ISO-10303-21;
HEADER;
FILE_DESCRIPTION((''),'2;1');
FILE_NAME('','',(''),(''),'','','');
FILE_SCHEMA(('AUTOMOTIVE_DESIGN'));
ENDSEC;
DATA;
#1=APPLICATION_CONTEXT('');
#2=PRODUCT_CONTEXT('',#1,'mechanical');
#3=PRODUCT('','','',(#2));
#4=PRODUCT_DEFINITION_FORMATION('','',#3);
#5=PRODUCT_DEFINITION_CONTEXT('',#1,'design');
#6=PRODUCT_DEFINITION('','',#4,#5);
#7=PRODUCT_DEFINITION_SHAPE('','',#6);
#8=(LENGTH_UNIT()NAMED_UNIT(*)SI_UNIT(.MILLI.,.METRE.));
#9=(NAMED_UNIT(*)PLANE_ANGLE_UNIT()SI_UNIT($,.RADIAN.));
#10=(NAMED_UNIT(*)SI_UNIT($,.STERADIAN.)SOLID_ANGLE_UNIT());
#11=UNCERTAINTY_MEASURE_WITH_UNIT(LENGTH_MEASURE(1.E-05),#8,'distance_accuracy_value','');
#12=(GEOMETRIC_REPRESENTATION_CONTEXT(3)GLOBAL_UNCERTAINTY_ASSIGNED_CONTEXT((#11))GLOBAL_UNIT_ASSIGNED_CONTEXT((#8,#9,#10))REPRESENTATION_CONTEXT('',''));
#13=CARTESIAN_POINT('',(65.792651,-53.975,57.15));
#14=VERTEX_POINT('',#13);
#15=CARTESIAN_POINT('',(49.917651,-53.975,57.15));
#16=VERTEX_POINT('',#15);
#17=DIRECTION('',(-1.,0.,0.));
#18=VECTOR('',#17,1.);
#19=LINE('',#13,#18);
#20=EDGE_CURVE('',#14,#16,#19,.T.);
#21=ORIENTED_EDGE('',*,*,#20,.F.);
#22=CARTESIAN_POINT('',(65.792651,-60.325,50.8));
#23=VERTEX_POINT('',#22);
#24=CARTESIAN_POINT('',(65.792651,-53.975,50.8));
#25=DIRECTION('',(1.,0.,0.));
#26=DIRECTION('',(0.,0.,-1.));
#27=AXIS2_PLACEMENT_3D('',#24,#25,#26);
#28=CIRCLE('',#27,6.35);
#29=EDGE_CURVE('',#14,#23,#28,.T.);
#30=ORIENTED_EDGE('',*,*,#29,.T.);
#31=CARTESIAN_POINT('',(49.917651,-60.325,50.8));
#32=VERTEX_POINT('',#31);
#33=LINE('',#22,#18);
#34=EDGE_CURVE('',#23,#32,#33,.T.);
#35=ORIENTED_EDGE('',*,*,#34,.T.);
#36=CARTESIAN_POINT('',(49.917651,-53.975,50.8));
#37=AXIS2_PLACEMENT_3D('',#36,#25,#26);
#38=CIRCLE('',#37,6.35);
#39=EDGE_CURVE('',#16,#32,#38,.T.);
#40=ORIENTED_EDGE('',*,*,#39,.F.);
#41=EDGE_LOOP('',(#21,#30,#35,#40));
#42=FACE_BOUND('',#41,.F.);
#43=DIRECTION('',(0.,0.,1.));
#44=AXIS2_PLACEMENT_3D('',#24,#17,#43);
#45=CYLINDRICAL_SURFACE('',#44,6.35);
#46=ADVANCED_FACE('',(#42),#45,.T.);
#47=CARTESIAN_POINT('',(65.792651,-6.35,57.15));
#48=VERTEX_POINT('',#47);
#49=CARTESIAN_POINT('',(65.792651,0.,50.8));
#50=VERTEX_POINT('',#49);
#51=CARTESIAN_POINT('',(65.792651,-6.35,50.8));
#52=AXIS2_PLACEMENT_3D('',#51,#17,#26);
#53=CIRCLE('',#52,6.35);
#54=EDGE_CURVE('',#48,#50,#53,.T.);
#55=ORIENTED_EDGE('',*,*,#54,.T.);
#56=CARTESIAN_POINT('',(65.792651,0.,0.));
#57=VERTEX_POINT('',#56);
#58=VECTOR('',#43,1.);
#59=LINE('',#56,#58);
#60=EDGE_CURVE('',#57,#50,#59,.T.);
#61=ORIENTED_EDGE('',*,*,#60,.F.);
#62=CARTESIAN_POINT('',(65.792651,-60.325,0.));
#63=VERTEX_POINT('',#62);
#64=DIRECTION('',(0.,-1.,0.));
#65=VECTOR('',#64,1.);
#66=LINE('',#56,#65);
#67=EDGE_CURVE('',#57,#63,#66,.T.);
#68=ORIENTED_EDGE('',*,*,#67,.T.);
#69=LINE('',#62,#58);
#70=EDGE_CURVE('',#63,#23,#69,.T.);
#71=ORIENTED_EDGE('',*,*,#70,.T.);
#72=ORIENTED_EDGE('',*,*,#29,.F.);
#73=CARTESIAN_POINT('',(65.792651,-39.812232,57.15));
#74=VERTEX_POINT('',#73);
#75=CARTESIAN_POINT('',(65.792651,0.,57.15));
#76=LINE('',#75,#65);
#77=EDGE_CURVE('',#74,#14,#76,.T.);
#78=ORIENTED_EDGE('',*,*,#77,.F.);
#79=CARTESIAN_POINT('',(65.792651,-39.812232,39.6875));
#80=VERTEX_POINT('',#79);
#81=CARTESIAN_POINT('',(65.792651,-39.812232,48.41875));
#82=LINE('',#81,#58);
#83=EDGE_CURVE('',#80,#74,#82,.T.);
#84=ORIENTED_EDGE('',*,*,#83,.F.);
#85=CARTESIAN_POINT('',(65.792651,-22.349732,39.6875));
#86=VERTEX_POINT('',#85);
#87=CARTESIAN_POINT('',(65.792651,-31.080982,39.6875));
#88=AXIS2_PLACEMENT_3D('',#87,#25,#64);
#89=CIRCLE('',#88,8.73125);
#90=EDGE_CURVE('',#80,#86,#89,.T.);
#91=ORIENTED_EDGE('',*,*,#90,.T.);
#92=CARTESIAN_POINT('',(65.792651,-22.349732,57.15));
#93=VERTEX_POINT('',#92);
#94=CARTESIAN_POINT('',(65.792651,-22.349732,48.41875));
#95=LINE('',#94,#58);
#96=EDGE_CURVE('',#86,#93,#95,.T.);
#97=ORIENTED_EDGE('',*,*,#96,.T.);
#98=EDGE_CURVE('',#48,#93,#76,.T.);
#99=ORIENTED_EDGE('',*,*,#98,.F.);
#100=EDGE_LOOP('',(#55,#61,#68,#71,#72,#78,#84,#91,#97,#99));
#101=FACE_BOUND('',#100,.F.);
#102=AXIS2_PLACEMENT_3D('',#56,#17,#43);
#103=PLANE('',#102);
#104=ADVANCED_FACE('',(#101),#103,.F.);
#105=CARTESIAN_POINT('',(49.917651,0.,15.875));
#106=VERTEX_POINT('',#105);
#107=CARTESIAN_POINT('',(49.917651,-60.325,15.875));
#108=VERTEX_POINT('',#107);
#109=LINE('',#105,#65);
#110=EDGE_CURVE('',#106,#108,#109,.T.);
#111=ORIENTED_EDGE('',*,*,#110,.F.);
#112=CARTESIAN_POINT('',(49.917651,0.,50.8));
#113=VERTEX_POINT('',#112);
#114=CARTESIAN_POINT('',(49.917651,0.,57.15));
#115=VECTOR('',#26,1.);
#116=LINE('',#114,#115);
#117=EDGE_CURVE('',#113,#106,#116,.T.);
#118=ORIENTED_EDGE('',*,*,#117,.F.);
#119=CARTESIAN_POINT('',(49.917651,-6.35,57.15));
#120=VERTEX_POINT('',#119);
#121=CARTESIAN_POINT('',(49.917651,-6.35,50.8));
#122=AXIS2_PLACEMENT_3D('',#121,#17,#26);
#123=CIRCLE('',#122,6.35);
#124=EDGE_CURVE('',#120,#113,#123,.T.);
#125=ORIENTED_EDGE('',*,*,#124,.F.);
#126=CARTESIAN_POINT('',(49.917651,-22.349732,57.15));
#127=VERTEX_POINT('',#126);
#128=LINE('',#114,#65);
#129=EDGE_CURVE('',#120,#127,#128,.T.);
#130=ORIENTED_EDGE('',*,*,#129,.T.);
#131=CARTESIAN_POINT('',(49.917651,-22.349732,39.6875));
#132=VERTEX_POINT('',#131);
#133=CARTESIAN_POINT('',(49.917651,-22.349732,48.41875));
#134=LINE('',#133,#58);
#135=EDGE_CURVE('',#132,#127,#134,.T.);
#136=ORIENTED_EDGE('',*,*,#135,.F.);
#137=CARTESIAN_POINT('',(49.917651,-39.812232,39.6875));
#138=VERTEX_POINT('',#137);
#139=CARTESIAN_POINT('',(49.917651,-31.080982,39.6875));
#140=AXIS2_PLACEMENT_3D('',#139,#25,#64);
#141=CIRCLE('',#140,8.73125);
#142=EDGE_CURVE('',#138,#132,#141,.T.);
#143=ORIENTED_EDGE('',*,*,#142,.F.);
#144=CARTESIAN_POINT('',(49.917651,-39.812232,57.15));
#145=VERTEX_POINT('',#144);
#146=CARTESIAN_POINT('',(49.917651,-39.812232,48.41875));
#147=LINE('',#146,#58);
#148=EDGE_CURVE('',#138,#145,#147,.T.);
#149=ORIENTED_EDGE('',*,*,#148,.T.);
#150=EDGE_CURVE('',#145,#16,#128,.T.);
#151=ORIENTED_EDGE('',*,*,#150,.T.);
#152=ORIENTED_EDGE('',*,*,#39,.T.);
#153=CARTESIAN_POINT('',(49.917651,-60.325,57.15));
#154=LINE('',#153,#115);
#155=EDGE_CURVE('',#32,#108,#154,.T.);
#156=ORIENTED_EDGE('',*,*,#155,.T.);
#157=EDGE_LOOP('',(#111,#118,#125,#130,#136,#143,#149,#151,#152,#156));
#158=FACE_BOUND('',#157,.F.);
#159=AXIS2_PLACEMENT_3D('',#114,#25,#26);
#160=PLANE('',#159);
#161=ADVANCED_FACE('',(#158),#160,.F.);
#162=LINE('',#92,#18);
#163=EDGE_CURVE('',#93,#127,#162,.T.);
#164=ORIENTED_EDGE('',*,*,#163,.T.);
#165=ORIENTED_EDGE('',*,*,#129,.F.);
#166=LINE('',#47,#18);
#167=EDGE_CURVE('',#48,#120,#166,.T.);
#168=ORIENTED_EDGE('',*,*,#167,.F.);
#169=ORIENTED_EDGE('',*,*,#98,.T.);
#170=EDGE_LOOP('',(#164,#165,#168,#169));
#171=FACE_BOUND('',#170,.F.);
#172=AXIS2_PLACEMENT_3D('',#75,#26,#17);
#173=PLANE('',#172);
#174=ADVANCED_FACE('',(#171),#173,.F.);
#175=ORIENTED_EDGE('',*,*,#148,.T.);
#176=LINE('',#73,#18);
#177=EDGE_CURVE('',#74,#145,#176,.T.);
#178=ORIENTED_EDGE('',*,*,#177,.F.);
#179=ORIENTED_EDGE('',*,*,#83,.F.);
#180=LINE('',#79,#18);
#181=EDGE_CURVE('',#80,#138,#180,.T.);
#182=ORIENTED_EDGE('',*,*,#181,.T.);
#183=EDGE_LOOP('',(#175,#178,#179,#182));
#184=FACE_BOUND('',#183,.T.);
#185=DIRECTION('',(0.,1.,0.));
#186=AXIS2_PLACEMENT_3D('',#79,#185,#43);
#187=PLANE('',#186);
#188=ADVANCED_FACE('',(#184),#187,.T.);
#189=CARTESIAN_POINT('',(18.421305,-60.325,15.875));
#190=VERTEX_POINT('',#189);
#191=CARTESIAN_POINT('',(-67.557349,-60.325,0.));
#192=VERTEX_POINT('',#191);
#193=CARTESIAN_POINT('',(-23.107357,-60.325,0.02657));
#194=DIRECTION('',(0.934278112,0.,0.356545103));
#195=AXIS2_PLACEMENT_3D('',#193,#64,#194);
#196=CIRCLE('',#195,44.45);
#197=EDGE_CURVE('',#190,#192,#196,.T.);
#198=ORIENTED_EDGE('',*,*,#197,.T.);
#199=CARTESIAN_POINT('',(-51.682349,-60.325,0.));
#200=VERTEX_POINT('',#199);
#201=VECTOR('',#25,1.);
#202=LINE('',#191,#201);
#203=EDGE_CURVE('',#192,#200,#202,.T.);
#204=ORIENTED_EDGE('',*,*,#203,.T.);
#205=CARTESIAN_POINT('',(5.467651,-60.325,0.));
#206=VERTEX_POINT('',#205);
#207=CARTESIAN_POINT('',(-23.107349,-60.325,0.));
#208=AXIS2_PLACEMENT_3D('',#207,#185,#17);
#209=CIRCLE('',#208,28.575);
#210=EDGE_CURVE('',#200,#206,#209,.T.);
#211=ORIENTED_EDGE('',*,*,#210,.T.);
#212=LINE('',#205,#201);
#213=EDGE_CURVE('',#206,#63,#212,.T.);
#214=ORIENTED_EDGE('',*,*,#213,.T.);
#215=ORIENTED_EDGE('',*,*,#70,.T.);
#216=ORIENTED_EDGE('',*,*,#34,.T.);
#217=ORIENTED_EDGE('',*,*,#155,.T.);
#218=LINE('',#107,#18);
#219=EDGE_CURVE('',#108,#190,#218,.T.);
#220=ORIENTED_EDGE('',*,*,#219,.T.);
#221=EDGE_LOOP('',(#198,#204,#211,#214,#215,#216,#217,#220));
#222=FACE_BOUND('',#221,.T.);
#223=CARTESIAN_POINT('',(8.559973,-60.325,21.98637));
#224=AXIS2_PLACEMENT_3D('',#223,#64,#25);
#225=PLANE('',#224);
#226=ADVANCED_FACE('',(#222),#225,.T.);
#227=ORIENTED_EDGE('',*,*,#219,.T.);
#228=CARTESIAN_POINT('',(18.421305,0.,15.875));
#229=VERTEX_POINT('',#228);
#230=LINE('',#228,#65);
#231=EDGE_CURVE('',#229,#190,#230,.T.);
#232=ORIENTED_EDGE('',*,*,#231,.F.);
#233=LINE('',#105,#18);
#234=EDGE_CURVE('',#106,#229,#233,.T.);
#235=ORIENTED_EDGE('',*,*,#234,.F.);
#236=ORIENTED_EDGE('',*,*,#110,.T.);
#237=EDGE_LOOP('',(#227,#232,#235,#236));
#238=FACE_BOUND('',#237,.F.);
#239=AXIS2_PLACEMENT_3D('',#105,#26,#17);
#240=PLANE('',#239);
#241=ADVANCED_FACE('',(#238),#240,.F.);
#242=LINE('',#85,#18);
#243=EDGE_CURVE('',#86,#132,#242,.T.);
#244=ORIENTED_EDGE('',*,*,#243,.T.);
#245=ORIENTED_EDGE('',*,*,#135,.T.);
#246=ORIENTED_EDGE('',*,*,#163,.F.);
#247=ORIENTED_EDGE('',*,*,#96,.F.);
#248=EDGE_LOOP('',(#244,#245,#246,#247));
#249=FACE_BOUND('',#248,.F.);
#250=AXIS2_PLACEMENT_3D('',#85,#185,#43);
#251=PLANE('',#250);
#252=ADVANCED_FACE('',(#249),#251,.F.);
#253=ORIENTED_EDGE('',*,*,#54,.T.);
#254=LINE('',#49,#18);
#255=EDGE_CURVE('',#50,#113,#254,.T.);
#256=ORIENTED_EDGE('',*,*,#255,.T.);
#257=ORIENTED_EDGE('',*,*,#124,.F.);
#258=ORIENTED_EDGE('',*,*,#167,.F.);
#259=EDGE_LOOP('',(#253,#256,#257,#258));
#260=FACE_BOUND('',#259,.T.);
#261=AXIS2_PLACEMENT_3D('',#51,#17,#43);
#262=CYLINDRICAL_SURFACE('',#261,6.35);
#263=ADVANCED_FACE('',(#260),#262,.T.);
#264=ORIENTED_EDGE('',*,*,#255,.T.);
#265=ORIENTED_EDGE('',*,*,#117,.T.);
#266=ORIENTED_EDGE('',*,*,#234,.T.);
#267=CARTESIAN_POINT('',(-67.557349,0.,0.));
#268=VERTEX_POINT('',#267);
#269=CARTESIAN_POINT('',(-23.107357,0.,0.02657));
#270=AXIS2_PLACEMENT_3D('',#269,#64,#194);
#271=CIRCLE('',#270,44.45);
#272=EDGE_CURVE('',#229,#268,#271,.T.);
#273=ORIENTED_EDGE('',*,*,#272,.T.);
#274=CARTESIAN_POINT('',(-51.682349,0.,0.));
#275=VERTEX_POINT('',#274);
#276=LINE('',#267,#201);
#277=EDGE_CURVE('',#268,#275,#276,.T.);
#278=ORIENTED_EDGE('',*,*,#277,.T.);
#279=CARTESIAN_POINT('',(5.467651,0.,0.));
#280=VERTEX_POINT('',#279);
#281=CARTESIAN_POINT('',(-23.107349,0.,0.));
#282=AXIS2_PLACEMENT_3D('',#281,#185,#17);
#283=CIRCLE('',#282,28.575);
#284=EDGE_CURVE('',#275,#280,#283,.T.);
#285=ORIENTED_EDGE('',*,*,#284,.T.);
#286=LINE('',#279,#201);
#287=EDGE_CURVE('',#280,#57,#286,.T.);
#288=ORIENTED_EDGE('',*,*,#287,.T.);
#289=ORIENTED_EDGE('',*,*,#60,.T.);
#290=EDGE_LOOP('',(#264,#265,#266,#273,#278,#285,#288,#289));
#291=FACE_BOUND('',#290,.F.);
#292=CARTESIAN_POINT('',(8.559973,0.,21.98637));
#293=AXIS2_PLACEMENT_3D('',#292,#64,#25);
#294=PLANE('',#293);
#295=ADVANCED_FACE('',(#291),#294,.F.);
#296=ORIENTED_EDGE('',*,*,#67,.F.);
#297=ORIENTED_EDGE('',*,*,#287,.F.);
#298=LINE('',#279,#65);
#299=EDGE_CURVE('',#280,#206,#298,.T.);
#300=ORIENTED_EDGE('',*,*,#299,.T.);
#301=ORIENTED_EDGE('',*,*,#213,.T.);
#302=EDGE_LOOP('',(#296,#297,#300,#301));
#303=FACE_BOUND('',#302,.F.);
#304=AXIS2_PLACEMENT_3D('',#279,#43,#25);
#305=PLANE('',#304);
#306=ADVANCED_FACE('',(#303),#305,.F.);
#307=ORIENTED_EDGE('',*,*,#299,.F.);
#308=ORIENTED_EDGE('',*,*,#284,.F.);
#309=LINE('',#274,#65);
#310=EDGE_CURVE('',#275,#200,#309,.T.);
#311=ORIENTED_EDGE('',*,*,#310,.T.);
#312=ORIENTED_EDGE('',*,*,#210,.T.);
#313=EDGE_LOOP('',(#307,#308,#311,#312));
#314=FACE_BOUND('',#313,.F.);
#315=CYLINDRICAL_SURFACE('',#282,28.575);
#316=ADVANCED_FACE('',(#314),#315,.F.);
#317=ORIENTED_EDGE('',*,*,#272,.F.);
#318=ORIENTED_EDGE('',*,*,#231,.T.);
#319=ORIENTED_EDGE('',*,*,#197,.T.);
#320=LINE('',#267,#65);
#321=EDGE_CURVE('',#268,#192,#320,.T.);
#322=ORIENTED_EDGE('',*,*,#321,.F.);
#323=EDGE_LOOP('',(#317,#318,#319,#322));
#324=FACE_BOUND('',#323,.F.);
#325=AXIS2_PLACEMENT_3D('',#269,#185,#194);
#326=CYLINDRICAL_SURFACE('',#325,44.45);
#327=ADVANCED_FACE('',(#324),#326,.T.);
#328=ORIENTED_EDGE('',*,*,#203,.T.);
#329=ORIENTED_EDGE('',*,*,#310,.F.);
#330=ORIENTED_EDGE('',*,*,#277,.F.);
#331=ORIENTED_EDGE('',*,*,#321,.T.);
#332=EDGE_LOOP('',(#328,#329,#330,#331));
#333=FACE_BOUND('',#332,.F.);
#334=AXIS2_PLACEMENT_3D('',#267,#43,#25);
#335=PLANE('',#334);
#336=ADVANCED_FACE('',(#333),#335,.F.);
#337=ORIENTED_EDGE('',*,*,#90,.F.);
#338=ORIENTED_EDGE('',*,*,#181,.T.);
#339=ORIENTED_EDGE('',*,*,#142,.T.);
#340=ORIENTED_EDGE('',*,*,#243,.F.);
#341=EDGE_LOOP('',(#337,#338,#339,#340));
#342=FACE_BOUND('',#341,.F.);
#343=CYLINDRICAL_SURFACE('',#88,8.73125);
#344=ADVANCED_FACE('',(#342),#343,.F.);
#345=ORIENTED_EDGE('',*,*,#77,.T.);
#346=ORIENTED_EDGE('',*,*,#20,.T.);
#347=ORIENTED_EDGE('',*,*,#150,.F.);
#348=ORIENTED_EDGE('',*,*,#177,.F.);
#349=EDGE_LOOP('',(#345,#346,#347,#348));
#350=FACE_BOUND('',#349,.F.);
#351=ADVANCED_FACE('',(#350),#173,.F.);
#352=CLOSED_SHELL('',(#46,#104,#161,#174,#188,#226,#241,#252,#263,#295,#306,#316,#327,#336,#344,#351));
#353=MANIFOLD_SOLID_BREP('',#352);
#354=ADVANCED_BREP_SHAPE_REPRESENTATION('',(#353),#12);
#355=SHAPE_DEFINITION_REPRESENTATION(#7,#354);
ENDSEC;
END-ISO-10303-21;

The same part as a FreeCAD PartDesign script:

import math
import FreeCAD as App
import Part
import Sketcher
Q = App.Units.Quantity


def edges_at(feature, points):
    """Names of the edges that pass closest to the given points."""
    edges = feature.Shape.Edges
    near = lambda p: min(range(len(edges)), key=lambda i: edges[i].distToShape(Part.Vertex(*p))[0])
    return sorted({f"Edge{near(p) + 1}" for p in points})

doc = App.newDocument("Part")
body = doc.addObject("PartDesign::Body", "Body")

sketch1 = body.newObject("Sketcher::SketchObject", "Sketch")
sketch1.AttachmentSupport = (doc.getObject("XZ_Plane"), [""])
sketch1.MapMode = "FlatFace"
sketch1.addGeometry(Part.ArcOfCircle(Part.Circle(App.Vector(-23, 0, 0), App.Vector(0, 0, 1), 44), math.radians(21), math.radians(180)), False)
sketch1.addGeometry(Part.LineSegment(App.Vector(-68, 0, 0), App.Vector(-52, 0, 0)), False)
sketch1.addGeometry(Part.ArcOfCircle(Part.Circle(App.Vector(-23, 0, 0), App.Vector(0, 0, 1), 29), math.radians(0), math.radians(180)), False)
sketch1.addGeometry(Part.LineSegment(App.Vector(5, 0, 0), App.Vector(66, 0, 0)), False)
sketch1.addGeometry(Part.LineSegment(App.Vector(66, 0, 0), App.Vector(66, 57, 0)), False)
sketch1.addGeometry(Part.LineSegment(App.Vector(66, 57, 0), App.Vector(50, 57, 0)), False)
sketch1.addGeometry(Part.LineSegment(App.Vector(50, 57, 0), App.Vector(50, 16, 0)), False)
sketch1.addGeometry(Part.LineSegment(App.Vector(50, 16, 0), App.Vector(18, 16, 0)), False)
sketch1.addConstraint(Sketcher.Constraint("Coincident", 0, 2, 1, 1))
sketch1.addConstraint(Sketcher.Constraint("Coincident", 1, 2, 2, 2))
sketch1.addConstraint(Sketcher.Constraint("Coincident", 2, 1, 3, 1))
sketch1.addConstraint(Sketcher.Constraint("Coincident", 3, 2, 4, 1))
sketch1.addConstraint(Sketcher.Constraint("Coincident", 4, 2, 5, 1))
sketch1.addConstraint(Sketcher.Constraint("Coincident", 5, 2, 6, 1))
sketch1.addConstraint(Sketcher.Constraint("Coincident", 6, 2, 7, 1))
sketch1.addConstraint(Sketcher.Constraint("Coincident", 7, 2, 0, 1))
sketch1.addConstraint(Sketcher.Constraint("Horizontal", 1))
sketch1.addConstraint(Sketcher.Constraint("Horizontal", 3))
sketch1.addConstraint(Sketcher.Constraint("Vertical", 4))
sketch1.addConstraint(Sketcher.Constraint("Horizontal", 5))
sketch1.addConstraint(Sketcher.Constraint("Vertical", 6))
sketch1.addConstraint(Sketcher.Constraint("Horizontal", 7))
sketch1.addConstraint(Sketcher.Constraint("PointOnObject", 2, 3, -1))
sketch1.addConstraint(Sketcher.Constraint("PointOnObject", 0, 2, -1))
sketch1.addConstraint(Sketcher.Constraint("PointOnObject", 2, 1, -1))
sketch1.addConstraint(Sketcher.Constraint("Equal", 1, 5))
sketch1.addConstraint(Sketcher.Constraint("Radius", 0, Q("1.75 in")))
sketch1.addConstraint(Sketcher.Constraint("Radius", 2, Q("1.125 in")))
sketch1.addConstraint(Sketcher.Constraint("DistanceY", 4, 1, 4, 2, Q("2.25 in")))
sketch1.addConstraint(Sketcher.Constraint("DistanceX", 2, 3, 3, 2, Q("3.5 in")))
sketch1.addConstraint(Sketcher.Constraint("DistanceX", 1, 1, 1, 2, Q("0.625 in")))
sketch1.addConstraint(Sketcher.Constraint("DistanceY", 6, 2, 6, 1, Q("1.625 in")))
sketch1.addConstraint(Sketcher.Constraint("DistanceX", 7, 2, 7, 1, Q("31.496346 mm")))
sketch1.addConstraint(Sketcher.Constraint("DistanceX", 2, 3, -1, 1, Q("23.107349 mm")))
pad1 = body.newObject("PartDesign::Pad", "Pad")
pad1.Profile = sketch1
pad1.Length = Q("2.375 in")
doc.recompute()

fillet = body.newObject("PartDesign::Fillet", "Fillet")
fillet.Base = (pad1, edges_at(pad1, [(57.855, -60.325, 57.15)]))
fillet.Radius = Q("0.25 in")
doc.recompute()

fillet2 = body.newObject("PartDesign::Fillet", "Fillet001")
fillet2.Base = (fillet, edges_at(fillet, [(57.855, 0, 57.15)]))
fillet2.Radius = Q("0.25 in")

sketch2 = body.newObject("Sketcher::SketchObject", "Sketch001")
sketch2.AttachmentSupport = (doc.getObject("YZ_Plane"), [""])
sketch2.MapMode = "FlatFace"
sketch2.AttachmentOffset = App.Placement(App.Vector(0, 0, 65.792651), App.Rotation())
sketch2.addGeometry(Part.LineSegment(App.Vector(-40, 57, 0), App.Vector(-40, 40, 0)), False)
sketch2.addGeometry(Part.ArcOfCircle(Part.Circle(App.Vector(-31, 40, 0), App.Vector(0, 0, 1), 9), math.radians(180), math.radians(360)), False)
sketch2.addGeometry(Part.LineSegment(App.Vector(-22, 40, 0), App.Vector(-22, 57, 0)), False)
sketch2.addGeometry(Part.LineSegment(App.Vector(-22, 57, 0), App.Vector(-40, 57, 0)), False)
sketch2.addConstraint(Sketcher.Constraint("Tangent", 0, 2, 1, 1))
sketch2.addConstraint(Sketcher.Constraint("Tangent", 1, 2, 2, 1))
sketch2.addConstraint(Sketcher.Constraint("Coincident", 2, 2, 3, 1))
sketch2.addConstraint(Sketcher.Constraint("Coincident", 3, 2, 0, 1))
sketch2.addConstraint(Sketcher.Constraint("Vertical", 0))
sketch2.addConstraint(Sketcher.Constraint("Vertical", 2))
sketch2.addConstraint(Sketcher.Constraint("Horizontal", 3))
sketch2.addConstraint(Sketcher.Constraint("Equal", 3, 0))
sketch2.addConstraint(Sketcher.Constraint("Radius", 1, Q("0.34375 in")))
sketch2.addConstraint(Sketcher.Constraint("DistanceY", -1, 1, 2, 2, Q("2.25 in")))
sketch2.addConstraint(Sketcher.Constraint("DistanceX", 1, 3, -1, 1, Q("31.080982 mm")))
pocket1 = body.newObject("PartDesign::Pocket", "Pocket")
pocket1.Profile = sketch2
pocket1.Length = Q("1 in")

doc.recompute()
